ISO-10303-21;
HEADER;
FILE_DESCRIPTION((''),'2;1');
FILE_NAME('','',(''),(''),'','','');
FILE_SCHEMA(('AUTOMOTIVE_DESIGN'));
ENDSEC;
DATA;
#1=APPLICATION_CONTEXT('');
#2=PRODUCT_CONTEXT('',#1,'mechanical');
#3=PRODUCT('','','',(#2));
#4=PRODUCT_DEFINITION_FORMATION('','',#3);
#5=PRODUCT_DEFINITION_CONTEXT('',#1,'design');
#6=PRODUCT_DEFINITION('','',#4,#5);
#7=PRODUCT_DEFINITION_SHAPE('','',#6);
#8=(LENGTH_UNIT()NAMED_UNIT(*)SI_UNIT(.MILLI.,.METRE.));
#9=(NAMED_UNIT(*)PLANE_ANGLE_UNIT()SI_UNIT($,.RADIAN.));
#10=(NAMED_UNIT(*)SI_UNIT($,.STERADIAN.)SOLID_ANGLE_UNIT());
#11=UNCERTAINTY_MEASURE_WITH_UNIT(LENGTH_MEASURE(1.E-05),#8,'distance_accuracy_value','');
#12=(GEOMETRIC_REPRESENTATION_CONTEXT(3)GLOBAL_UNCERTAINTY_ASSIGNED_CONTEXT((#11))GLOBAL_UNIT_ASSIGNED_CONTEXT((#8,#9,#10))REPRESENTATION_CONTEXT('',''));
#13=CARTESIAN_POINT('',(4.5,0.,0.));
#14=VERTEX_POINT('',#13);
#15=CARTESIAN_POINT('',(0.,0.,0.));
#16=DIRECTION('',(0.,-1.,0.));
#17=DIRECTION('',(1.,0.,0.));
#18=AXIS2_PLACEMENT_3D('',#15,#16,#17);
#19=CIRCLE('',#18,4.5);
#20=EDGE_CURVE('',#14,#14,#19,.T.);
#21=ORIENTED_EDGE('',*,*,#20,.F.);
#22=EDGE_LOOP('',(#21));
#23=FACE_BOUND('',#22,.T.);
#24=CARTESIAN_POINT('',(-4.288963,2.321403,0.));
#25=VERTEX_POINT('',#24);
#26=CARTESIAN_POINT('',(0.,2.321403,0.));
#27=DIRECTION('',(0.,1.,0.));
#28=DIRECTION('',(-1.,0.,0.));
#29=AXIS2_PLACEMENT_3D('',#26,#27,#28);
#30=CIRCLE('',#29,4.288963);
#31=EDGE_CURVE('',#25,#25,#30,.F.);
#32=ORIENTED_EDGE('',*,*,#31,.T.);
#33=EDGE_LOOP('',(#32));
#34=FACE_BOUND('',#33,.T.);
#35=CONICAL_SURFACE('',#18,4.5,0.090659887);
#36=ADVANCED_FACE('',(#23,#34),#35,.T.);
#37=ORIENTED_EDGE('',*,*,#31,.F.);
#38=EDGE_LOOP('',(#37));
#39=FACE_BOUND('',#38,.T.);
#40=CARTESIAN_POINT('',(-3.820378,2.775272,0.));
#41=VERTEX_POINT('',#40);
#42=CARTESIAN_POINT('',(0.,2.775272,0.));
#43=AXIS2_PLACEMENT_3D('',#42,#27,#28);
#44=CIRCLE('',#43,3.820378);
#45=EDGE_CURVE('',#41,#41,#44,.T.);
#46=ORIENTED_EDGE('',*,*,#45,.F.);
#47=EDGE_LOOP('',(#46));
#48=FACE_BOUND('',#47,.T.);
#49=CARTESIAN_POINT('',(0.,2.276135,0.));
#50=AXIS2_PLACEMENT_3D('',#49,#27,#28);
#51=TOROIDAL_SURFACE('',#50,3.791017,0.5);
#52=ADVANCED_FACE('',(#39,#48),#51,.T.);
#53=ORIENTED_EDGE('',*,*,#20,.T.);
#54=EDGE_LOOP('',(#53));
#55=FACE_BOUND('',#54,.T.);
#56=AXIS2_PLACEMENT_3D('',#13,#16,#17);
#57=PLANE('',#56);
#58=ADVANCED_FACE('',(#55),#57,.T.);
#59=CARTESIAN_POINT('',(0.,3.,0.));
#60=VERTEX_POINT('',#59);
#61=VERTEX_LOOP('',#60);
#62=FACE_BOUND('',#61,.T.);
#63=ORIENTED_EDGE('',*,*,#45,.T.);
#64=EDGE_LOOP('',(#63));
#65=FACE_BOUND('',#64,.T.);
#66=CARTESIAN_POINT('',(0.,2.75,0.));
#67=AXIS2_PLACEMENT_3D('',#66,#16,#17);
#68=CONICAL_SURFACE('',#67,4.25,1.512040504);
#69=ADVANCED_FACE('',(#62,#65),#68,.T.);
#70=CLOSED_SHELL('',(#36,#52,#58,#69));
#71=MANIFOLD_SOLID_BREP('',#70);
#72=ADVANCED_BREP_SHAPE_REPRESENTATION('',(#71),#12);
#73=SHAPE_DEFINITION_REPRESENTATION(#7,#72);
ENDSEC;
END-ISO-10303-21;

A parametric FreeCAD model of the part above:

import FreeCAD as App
import Part
import Sketcher
from FreeCAD import Vector
Q = App.Units.Quantity


def edges_at(feature, points):
    """Names of the edges that pass closest to the given points."""
    edges = feature.Shape.Edges
    near = lambda p: min(range(len(edges)), key=lambda i: edges[i].distToShape(Part.Vertex(*p))[0])
    return sorted({f"Edge{near(p) + 1}" for p in points})


def add_polygon(sketch, points):
    """Adds a closed chain of lines whose ends are joined by coincident constraints."""
    first, n = sketch.GeometryCount, len(points)
    for a, b in zip(points, points[1:] + points[:1]):
        sketch.addGeometry(Part.LineSegment(App.Vector(*a, 0), App.Vector(*b, 0)), False)
    for i in range(n):
        sketch.addConstraint(Sketcher.Constraint("Coincident", first + i, 2, first + (i + 1) % n, 1))

doc = App.newDocument("Part")
body = doc.addObject("PartDesign::Body", "Body")

# Sketch on XY plane
sketch1 = body.newObject("Sketcher::SketchObject", "Sketch")
sketch1.AttachmentSupport = (doc.getObject("XY_Plane"), [""])
sketch1.MapMode = "FlatFace"
add_polygon(sketch1, [(0, 0), (4.5, 0), (4.25, 2.75), (0, 3)])  # lines 0-3
sketch1.addConstraint(Sketcher.Constraint("Horizontal", 0))
sketch1.addConstraint(Sketcher.Constraint("Vertical", 3))
sketch1.addConstraint(Sketcher.Constraint("Coincident", 3, 2, -1, 1))
sketch1.addConstraint(Sketcher.Constraint("DistanceY", 3, 2, 3, 1, Q("3 mm")))
sketch1.addConstraint(Sketcher.Constraint("DistanceX", 0, 1, 0, 2, Q("4.5 mm")))
sketch1.addConstraint(Sketcher.Constraint("DistanceX", -1, 1, 1, 2, Q("4.25 mm")))
sketch1.addConstraint(Sketcher.Constraint("DistanceY", -1, 1, 1, 2, Q("2.75 mm")))
revolution = body.newObject("PartDesign::Revolution", "Revolution")
revolution.Profile = sketch1
revolution.ReferenceAxis = (sketch1, ["V_Axis"])
revolution.Angle = 360
doc.recompute()

fillet = body.newObject("PartDesign::Fillet", "Fillet")
fillet.Base = (revolution, edges_at(revolution, [(-4.25, 2.75, 0)]))
fillet.Radius = 0.5

doc.recompute()
